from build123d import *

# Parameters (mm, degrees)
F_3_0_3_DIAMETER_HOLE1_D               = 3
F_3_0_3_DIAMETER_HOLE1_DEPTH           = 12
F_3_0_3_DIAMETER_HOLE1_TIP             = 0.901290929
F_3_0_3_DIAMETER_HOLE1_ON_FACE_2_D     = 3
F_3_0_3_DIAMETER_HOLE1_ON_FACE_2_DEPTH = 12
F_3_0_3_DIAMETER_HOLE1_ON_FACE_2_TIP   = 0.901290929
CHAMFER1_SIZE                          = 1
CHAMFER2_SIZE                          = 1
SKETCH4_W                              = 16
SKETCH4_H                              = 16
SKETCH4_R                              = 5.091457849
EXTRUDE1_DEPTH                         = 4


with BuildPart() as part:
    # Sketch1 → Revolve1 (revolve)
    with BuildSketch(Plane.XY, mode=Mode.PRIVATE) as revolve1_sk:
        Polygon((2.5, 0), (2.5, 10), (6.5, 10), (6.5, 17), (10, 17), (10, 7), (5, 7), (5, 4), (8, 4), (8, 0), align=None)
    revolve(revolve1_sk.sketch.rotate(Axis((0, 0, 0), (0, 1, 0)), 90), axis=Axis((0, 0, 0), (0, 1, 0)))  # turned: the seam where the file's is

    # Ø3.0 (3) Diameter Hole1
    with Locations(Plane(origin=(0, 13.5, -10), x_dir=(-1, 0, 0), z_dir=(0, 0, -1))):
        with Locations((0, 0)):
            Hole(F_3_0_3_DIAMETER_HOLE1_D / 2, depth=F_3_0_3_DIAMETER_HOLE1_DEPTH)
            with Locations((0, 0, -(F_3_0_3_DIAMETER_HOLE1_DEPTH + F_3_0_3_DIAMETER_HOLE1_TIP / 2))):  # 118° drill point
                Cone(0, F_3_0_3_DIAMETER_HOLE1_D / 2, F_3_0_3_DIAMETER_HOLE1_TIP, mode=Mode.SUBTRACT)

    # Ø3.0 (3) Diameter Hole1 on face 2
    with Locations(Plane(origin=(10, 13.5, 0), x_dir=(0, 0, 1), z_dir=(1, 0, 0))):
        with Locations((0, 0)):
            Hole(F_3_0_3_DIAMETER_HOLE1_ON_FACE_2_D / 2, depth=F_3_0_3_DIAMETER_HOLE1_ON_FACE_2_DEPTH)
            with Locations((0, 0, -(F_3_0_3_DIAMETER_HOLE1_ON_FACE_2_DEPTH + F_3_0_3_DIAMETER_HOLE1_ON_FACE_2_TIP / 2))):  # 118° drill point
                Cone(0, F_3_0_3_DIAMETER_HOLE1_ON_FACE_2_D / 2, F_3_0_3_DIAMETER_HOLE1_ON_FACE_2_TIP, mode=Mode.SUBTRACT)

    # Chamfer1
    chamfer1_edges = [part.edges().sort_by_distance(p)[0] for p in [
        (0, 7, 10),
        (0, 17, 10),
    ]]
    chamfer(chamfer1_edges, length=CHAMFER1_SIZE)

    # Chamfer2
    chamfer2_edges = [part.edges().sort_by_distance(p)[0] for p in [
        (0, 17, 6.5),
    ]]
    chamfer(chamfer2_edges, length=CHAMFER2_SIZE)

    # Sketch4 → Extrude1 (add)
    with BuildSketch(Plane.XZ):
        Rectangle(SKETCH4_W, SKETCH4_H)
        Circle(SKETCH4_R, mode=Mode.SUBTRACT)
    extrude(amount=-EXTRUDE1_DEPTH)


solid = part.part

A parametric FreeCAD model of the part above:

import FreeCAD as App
import Part
import Sketcher
from FreeCAD import Vector
Q = App.Units.Quantity


def edges_at(feature, points):
    """Names of the edges that pass closest to the given points."""
    edges = feature.Shape.Edges
    near = lambda p: min(range(len(edges)), key=lambda i: edges[i].distToShape(Part.Vertex(*p))[0])
    return sorted({f"Edge{near(p) + 1}" for p in points})

doc = App.newDocument("Part")
body = doc.addObject("PartDesign::Body", "Body")

sketch1 = body.newObject("Sketcher::SketchObject", "Sketch")
sketch1.AttachmentSupport = (doc.getObject("XY_Plane"), [""])
sketch1.MapMode = "FlatFace"
sketch1.addGeometry([
    Part.LineSegment(Vector(2.5, 10, 0), Vector(2.5, 0, 0)),
    Part.LineSegment(Vector(2.5, 0, 0), Vector(8, 0, 0)),
    Part.LineSegment(Vector(8, 0, 0), Vector(8, 4, 0)),
    Part.LineSegment(Vector(8, 4, 0), Vector(5, 4, 0)),
    Part.LineSegment(Vector(5, 4, 0), Vector(5, 7, 0)),
    Part.LineSegment(Vector(5, 7, 0), Vector(10, 7, 0)),
    Part.LineSegment(Vector(10, 7, 0), Vector(10, 17, 0)),
    Part.LineSegment(Vector(10, 17, 0), Vector(6.5, 17, 0)),
    Part.LineSegment(Vector(6.5, 17, 0), Vector(6.5, 10, 0)),
    Part.LineSegment(Vector(6.5, 10, 0), Vector(2.5, 10, 0)),
], False)
sketch1.addConstraint([
    Sketcher.Constraint("Coincident", 0, 2, 1, 1),
    Sketcher.Constraint("Coincident", 1, 2, 2, 1),
    Sketcher.Constraint("Coincident", 2, 2, 3, 1),
    Sketcher.Constraint("Coincident", 3, 2, 4, 1),
    Sketcher.Constraint("Coincident", 4, 2, 5, 1),
    Sketcher.Constraint("Coincident", 5, 2, 6, 1),
    Sketcher.Constraint("Coincident", 6, 2, 7, 1),
    Sketcher.Constraint("Coincident", 7, 2, 8, 1),
    Sketcher.Constraint("Coincident", 8, 2, 9, 1),
    Sketcher.Constraint("Coincident", 9, 2, 0, 1),
    Sketcher.Constraint("Vertical", 0),
    Sketcher.Constraint("Horizontal", 1),
    Sketcher.Constraint("Vertical", 2),
    Sketcher.Constraint("Horizontal", 3),
    Sketcher.Constraint("Vertical", 4),
    Sketcher.Constraint("Horizontal", 5),
    Sketcher.Constraint("Vertical", 6),
    Sketcher.Constraint("Horizontal", 7),
    Sketcher.Constraint("Vertical", 8),
    Sketcher.Constraint("Horizontal", 9),
    Sketcher.Constraint("PointOnObject", 0, 2, -1),
    Sketcher.Constraint("Equal", 9, 2),
    Sketcher.Constraint("Equal", 3, 4),
    Sketcher.Constraint("Equal", 0, 6),
    Sketcher.Constraint("DistanceX", 3, 2, 3, 1, Q("3 mm")),
    Sketcher.Constraint("DistanceX", 5, 1, 5, 2, Q("5 mm")),
    Sketcher.Constraint("DistanceX", 9, 2, 9, 1, Q("4 mm")),
    Sketcher.Constraint("DistanceY", 0, 2, 0, 1, Q("10 mm")),
    Sketcher.Constraint("DistanceX", 1, 1, 1, 2, Q("5.5 mm")),
    Sketcher.Constraint("DistanceX", -1, 1, 1, 2, Q("8 mm")),
])
revolution = body.newObject("PartDesign::Revolution", "Revolution")
revolution.Profile = sketch1
revolution.ReferenceAxis = (sketch1, ["V_Axis"])
revolution.Angle = 360

sketch2 = body.newObject("Sketcher::SketchObject", "Sketch001")
sketch2.AttachmentSupport = (doc.getObject("XY_Plane"), [""])
sketch2.MapMode = "FlatFace"
sketch2.AttachmentOffset = App.Placement(Vector(0, 0, -10), App.Rotation())
sketch2.addGeometry(Part.Circle(Vector(0, 13.5, 0), Vector(0, 0, 1), 1.5), False)
sketch2.addConstraint([
    Sketcher.Constraint("PointOnObject", 0, 3, -2),
    Sketcher.Constraint("Diameter", 0, Q("3 mm")),
    Sketcher.Constraint("DistanceY", -1, 1, 0, 3, Q("13.5 mm")),
])
doc.recompute()
hole = body.newObject("PartDesign::Hole", "Hole")
hole.Profile = sketch2
hole.ThreadType = "None"
hole.Diameter = 3
hole.DepthType = "Dimension"
hole.Depth = 12
hole.DrillPoint = "Angled"
hole.DrillPointAngle = 118
hole.Reversed = True

sketch3 = body.newObject("Sketcher::SketchObject", "Sketch002")
sketch3.AttachmentSupport = (doc.getObject("YZ_Plane"), [""])
sketch3.MapMode = "FlatFace"
sketch3.AttachmentOffset = App.Placement(Vector(0, 0, 10), App.Rotation())
sketch3.addGeometry(Part.Circle(Vector(13.5, 0, 0), Vector(0, 0, 1), 1.5), False)
sketch3.addConstraint([
    Sketcher.Constraint("PointOnObject", 0, 3, -1),
    Sketcher.Constraint("Diameter", 0, Q("3 mm")),
    Sketcher.Constraint("DistanceX", -1, 1, 0, 3, Q("13.5 mm")),
])
doc.recompute()
hole2 = body.newObject("PartDesign::Hole", "Hole001")
hole2.Profile = sketch3
hole2.ThreadType = "None"
hole2.Diameter = 3
hole2.DepthType = "Dimension"
hole2.Depth = 12
hole2.DrillPoint = "Angled"
hole2.DrillPointAngle = 118
doc.recompute()

chamfer = body.newObject("PartDesign::Chamfer", "Chamfer")
chamfer.Base = (hole2, edges_at(hole2, [(0, 7, 10), (0, 17, 10)]))
chamfer.Size = 1
doc.recompute()

chamfer2 = body.newObject("PartDesign::Chamfer", "Chamfer001")
chamfer2.Base = (chamfer, edges_at(chamfer, [(0, 17, 6.5)]))
chamfer2.Size = 1

sketch4 = body.newObject("Sketcher::SketchObject", "Sketch003")
sketch4.AttachmentSupport = (doc.getObject("XZ_Plane"), [""])
sketch4.MapMode = "FlatFace"
sketch4.addGeometry([
    Part.LineSegment(Vector(-8, 8, 0), Vector(-8, -8, 0)),
    Part.LineSegment(Vector(-8, -8, 0), Vector(8, -8, 0)),
    Part.LineSegment(Vector(8, -8, 0), Vector(8, 8, 0)),
    Part.LineSegment(Vector(8, 8, 0), Vector(-8, 8, 0)),
    Part.Circle(Vector(0, 0, 0), Vector(0, 0, 1), 5.091458),
], False)
sketch4.addConstraint([
    Sketcher.Constraint("Coincident", 0, 2, 1, 1),
    Sketcher.Constraint("Coincident", 1, 2, 2, 1),
    Sketcher.Constraint("Coincident", 2, 2, 3, 1),
    Sketcher.Constraint("Coincident", 3, 2, 0, 1),
    Sketcher.Constraint("Vertical", 0),
    Sketcher.Constraint("Horizontal", 1),
    Sketcher.Constraint("Vertical", 2),
    Sketcher.Constraint("Horizontal", 3),
    Sketcher.Constraint("Coincident", 4, 3, -1, 1),
    Sketcher.Constraint("Symmetric", 0, 2, 2, 2, -1, 1),
    Sketcher.Constraint("Equal", 3, 0),
    Sketcher.Constraint("DistanceX", 1, 1, 1, 2, Q("16 mm")),
    Sketcher.Constraint("Diameter", 4, Q("10.182916 mm")),
])
pad1 = body.newObject("PartDesign::Pad", "Pad")
pad1.Profile = sketch4
pad1.Length = 4
pad1.Reversed = True

doc.recompute()
